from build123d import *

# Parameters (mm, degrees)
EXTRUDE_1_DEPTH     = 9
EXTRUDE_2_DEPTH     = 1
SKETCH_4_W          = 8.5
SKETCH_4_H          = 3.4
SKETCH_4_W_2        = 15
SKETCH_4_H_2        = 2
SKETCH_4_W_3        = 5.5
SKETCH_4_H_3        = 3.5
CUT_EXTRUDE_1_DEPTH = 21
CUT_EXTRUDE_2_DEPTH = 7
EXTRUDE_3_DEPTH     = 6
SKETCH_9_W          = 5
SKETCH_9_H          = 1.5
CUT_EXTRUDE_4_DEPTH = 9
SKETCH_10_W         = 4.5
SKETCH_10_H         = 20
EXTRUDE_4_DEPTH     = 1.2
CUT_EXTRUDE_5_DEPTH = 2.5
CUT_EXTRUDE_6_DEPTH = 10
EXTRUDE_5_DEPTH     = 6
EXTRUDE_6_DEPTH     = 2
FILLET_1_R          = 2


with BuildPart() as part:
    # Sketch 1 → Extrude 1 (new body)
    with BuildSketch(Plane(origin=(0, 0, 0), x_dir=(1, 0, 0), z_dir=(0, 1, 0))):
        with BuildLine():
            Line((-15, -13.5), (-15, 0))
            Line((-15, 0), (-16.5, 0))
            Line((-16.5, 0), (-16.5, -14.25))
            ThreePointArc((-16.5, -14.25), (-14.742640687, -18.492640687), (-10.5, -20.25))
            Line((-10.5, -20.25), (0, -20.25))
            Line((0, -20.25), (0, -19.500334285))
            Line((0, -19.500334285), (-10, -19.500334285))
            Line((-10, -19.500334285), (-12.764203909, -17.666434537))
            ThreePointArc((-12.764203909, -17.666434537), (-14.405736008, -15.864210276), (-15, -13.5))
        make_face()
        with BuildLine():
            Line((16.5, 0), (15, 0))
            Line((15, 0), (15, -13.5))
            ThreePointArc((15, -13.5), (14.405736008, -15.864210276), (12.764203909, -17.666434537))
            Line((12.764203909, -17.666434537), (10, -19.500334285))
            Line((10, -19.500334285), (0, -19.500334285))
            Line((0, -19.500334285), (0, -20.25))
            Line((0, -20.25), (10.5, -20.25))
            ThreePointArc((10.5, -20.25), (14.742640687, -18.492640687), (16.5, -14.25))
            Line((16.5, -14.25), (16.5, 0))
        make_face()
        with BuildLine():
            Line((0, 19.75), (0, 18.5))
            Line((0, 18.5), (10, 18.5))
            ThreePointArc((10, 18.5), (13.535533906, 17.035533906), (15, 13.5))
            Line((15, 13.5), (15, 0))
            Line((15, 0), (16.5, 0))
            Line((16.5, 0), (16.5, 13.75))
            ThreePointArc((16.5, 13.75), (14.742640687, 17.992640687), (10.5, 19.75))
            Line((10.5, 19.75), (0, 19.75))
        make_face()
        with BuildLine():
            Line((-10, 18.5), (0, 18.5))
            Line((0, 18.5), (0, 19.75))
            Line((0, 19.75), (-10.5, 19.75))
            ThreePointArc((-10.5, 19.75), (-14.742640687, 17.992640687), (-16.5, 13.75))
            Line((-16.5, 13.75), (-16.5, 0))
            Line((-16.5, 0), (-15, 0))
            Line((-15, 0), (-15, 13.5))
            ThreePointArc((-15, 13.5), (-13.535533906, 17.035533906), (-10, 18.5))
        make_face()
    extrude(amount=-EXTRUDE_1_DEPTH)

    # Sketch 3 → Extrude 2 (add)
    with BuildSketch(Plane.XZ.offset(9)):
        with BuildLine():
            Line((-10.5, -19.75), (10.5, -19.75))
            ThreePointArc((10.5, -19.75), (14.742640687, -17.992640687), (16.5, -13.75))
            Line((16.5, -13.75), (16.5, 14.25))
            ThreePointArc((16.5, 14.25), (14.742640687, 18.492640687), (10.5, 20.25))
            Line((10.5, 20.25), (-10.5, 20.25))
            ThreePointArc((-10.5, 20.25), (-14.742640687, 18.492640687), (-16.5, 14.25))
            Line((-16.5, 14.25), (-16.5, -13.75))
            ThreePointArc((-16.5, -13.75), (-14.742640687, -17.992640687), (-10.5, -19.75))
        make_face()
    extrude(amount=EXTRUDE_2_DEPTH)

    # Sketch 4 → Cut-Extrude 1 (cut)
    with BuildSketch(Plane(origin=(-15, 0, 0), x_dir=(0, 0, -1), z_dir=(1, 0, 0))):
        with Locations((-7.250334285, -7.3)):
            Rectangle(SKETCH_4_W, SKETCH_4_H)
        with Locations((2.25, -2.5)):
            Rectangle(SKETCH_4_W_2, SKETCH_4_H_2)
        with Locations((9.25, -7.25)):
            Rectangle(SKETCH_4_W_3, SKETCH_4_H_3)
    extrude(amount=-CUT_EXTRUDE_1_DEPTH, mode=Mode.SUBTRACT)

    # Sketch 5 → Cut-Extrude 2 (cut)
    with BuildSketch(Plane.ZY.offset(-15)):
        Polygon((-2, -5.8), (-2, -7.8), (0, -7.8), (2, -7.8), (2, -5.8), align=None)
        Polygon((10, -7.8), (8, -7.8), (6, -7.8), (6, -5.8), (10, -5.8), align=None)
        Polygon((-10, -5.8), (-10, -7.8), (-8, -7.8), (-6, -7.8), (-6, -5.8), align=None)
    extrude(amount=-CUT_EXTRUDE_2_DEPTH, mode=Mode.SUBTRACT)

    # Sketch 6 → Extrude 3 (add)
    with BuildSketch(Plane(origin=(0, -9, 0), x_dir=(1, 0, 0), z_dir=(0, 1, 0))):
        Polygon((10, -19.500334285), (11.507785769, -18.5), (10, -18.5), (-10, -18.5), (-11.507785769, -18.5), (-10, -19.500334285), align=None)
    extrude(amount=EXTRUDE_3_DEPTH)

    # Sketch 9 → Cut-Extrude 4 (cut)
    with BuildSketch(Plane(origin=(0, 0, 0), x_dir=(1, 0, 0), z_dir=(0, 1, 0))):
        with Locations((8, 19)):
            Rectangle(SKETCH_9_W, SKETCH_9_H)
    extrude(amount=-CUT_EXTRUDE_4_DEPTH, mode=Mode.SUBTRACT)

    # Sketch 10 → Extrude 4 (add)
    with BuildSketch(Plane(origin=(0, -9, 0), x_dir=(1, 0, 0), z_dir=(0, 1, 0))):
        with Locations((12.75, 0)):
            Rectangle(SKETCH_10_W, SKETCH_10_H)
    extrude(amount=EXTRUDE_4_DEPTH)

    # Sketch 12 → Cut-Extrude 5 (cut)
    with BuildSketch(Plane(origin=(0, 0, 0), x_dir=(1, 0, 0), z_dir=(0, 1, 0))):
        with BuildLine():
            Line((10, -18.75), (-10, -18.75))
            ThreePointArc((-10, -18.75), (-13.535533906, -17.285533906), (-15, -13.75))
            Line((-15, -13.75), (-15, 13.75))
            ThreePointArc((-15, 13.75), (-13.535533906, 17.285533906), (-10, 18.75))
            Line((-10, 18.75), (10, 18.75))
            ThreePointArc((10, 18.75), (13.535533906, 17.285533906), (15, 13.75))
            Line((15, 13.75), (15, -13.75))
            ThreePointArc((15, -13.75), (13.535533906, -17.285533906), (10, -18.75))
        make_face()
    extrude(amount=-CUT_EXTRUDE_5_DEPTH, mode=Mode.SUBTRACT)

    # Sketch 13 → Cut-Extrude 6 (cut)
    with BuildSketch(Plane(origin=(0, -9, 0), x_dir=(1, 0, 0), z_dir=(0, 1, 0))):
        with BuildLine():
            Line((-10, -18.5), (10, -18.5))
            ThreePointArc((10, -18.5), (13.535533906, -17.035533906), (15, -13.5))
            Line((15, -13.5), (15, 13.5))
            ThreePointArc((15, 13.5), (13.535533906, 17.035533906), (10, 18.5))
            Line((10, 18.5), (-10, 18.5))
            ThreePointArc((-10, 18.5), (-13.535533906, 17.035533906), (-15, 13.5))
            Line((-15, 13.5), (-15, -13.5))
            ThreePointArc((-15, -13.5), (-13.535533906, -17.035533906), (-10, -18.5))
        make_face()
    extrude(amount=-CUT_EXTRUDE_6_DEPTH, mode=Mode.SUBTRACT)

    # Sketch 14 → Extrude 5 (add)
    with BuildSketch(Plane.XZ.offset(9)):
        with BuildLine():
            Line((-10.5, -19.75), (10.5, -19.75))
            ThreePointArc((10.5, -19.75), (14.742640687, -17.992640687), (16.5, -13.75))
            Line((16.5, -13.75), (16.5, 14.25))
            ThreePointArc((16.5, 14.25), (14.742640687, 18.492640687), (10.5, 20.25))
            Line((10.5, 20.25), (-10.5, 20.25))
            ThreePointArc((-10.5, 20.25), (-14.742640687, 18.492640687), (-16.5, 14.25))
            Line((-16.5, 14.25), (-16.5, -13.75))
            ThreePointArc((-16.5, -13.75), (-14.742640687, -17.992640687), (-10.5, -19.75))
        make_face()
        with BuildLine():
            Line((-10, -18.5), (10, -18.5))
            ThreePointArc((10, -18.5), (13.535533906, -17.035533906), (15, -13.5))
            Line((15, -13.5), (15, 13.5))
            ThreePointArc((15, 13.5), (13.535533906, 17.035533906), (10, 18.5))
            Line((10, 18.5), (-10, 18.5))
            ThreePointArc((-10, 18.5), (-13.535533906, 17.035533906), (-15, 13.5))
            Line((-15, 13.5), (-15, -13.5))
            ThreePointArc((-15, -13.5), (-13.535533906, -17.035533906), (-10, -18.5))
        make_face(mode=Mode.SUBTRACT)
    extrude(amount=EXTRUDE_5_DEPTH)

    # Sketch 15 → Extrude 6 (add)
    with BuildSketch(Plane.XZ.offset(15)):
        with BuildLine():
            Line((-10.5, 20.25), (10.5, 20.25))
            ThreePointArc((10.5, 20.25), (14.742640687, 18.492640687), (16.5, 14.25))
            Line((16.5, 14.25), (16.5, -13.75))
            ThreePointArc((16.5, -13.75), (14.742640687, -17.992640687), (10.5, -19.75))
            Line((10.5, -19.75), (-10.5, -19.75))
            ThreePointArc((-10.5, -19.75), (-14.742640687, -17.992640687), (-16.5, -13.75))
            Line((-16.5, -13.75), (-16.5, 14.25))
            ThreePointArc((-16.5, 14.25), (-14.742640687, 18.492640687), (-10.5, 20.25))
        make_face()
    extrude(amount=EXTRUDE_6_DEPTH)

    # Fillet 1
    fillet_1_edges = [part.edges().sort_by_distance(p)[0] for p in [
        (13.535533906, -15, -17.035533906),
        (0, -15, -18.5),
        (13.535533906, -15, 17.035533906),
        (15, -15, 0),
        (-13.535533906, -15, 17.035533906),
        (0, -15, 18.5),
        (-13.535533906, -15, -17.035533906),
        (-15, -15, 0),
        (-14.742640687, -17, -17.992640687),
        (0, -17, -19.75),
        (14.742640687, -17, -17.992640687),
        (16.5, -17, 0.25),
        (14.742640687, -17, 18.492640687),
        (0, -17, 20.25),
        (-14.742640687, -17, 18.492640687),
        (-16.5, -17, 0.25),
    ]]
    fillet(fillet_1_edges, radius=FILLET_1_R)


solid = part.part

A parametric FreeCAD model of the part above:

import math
import FreeCAD as App
import Part
import Sketcher


def edges_at(feature, points):
    """Names of the edges that pass closest to the given points."""
    edges = feature.Shape.Edges
    near = lambda p: min(range(len(edges)), key=lambda i: edges[i].distToShape(Part.Vertex(*p))[0])
    return sorted({f"Edge{near(p) + 1}" for p in points})


def add_polygon(sketch, points):
    """Adds a closed chain of lines whose ends are joined by coincident constraints."""
    first, n = sketch.GeometryCount, len(points)
    for a, b in zip(points, points[1:] + points[:1]):
        sketch.addGeometry(Part.LineSegment(App.Vector(*a, 0), App.Vector(*b, 0)), False)
    for i in range(n):
        sketch.addConstraint(Sketcher.Constraint("Coincident", first + i, 2, first + (i + 1) % n, 1))

doc = App.newDocument("Part")
body = doc.addObject("PartDesign::Body", "Body")

# Sketch on XZ plane
sketch1 = body.newObject("Sketcher::SketchObject", "Sketch")
sketch1.AttachmentSupport = (doc.getObject("XZ_Plane"), [""])
sketch1.MapMode = "FlatFace"
sketch1.addGeometry([
    Part.ArcOfCircle(Part.Circle(App.Vector(-10.5, 14.25, 0), App.Vector(0, 0, 1), 6), math.radians(90), math.radians(180)),  # 0
    Part.LineSegment(App.Vector(-10.5, 20.25, 0), App.Vector(10.5, 20.25, 0)),  # 1
    Part.ArcOfCircle(Part.Circle(App.Vector(10.5, 14.25, 0), App.Vector(0, 0, 1), 6), math.radians(0), math.radians(90)),  # 2
    Part.LineSegment(App.Vector(16.5, 14.25, 0), App.Vector(16.5, -13.75, 0)),  # 3
    Part.ArcOfCircle(Part.Circle(App.Vector(10.5, -13.75, 0), App.Vector(0, 0, 1), 6), math.radians(-90), math.radians(0)),  # 4
    Part.LineSegment(App.Vector(10.5, -19.75, 0), App.Vector(-10.5, -19.75, 0)),  # 5
    Part.ArcOfCircle(Part.Circle(App.Vector(-10.5, -13.75, 0), App.Vector(0, 0, 1), 6), math.radians(180), math.radians(270)),  # 6
    Part.LineSegment(App.Vector(-16.5, -13.75, 0), App.Vector(-16.5, 14.25, 0)),  # 7
    Part.LineSegment(App.Vector(-15, 13.5, 0), App.Vector(-15, -13.5, 0)),  # 8
    Part.ArcOfCircle(Part.Circle(App.Vector(-10, -13.5, 0), App.Vector(0, 0, 1), 5), math.radians(180), math.radians(270)),  # 9
    Part.LineSegment(App.Vector(-10, -18.5, 0), App.Vector(10, -18.5, 0)),  # 10
    Part.ArcOfCircle(Part.Circle(App.Vector(10, -13.5, 0), App.Vector(0, 0, 1), 5), math.radians(-90), math.radians(0)),  # 11
    Part.LineSegment(App.Vector(15, -13.5, 0), App.Vector(15, 13.5, 0)),  # 12
    Part.ArcOfCircle(Part.Circle(App.Vector(10, 13.5, 0), App.Vector(0, 0, 1), 5), math.radians(0), math.radians(56.437878)),  # 13
    Part.LineSegment(App.Vector(12.764204, 17.666435, 0), App.Vector(10, 19.500334, 0)),  # 14
    Part.LineSegment(App.Vector(10, 19.500334, 0), App.Vector(-10, 19.500334, 0)),  # 15
    Part.LineSegment(App.Vector(-10, 19.500334, 0), App.Vector(-12.764204, 17.666435, 0)),  # 16
    Part.ArcOfCircle(Part.Circle(App.Vector(-10, 13.5, 0), App.Vector(0, 0, 1), 5), math.radians(123.562122), math.radians(180)),  # 17
], False)
sketch1.addConstraint([
    Sketcher.Constraint("Tangent", 0, 1, 1, 1),
    Sketcher.Constraint("Tangent", 1, 2, 2, 2),
    Sketcher.Constraint("Tangent", 2, 1, 3, 1),
    Sketcher.Constraint("Tangent", 3, 2, 4, 2),
    Sketcher.Constraint("Tangent", 4, 1, 5, 1),
    Sketcher.Constraint("Tangent", 5, 2, 6, 2),
    Sketcher.Constraint("Tangent", 6, 1, 7, 1),
    Sketcher.Constraint("Tangent", 7, 2, 0, 2),
    Sketcher.Constraint("Tangent", 8, 2, 9, 1),
    Sketcher.Constraint("Tangent", 9, 2, 10, 1),
    Sketcher.Constraint("Tangent", 10, 2, 11, 1),
    Sketcher.Constraint("Tangent", 11, 2, 12, 1),
    Sketcher.Constraint("Tangent", 12, 2, 13, 1),
    Sketcher.Constraint("Tangent", 13, 2, 14, 1),
    Sketcher.Constraint("Coincident", 14, 2, 15, 1),
    Sketcher.Constraint("Coincident", 15, 2, 16, 1),
    Sketcher.Constraint("Tangent", 16, 2, 17, 1),
    Sketcher.Constraint("Tangent", 17, 2, 8, 1),
    Sketcher.Constraint("Horizontal", 1),
    Sketcher.Constraint("Vertical", 3),
    Sketcher.Constraint("Horizontal", 5),
    Sketcher.Constraint("Vertical", 7),
    Sketcher.Constraint("Vertical", 8),
    Sketcher.Constraint("Horizontal", 10),
    Sketcher.Constraint("Vertical", 12),
    Sketcher.Constraint("Horizontal", 15),
    Sketcher.Constraint("Equal", 0, 2),
    Sketcher.Constraint("Equal", 2, 4),
    Sketcher.Constraint("Equal", 4, 6),
    Sketcher.Constraint("Equal", 9, 11),
    Sketcher.Constraint("Equal", 11, 13),
    Sketcher.Constraint("Equal", 13, 17),
    Sketcher.Constraint("Symmetric", 9, 3, 13, 3, -1, 1),
    Sketcher.Constraint("Symmetric", 13, 2, 16, 2, -2),
    Sketcher.Constraint("Vertical", 10, 2, 14, 2),
    Sketcher.Constraint("Radius", 0, 6.0),
    Sketcher.Constraint("Radius", 9, 5.0),
    Sketcher.Constraint("DistanceX", 1, 1, 1, 2, 21.0),
    Sketcher.Constraint("DistanceX", 10, 1, 10, 2, 20.0),
    Sketcher.Constraint("DistanceY", 3, 2, 3, 1, 28.0),
    Sketcher.Constraint("DistanceY", 8, 2, 8, 1, 27.0),
    Sketcher.Constraint("DistanceX", 0, 3, -1, 1, 10.5),
    Sketcher.Constraint("DistanceY", -1, 1, 0, 3, 14.25),
    Sketcher.Constraint("DistanceY", 13, 2, 14, 2, 1.8339),
])
pad1 = body.newObject("PartDesign::Pad", "Pad")
pad1.Profile = sketch1
pad1.Length = 9

# Sketch on XZ plane
sketch2 = body.newObject("Sketcher::SketchObject", "Sketch001")
sketch2.AttachmentSupport = (doc.getObject("XZ_Plane"), [""])
sketch2.MapMode = "FlatFace"
sketch2.AttachmentOffset = App.Placement(App.Vector(0, 0, 9), App.Rotation())
sketch2.addGeometry([
    Part.LineSegment(App.Vector(-10.5, -19.75, 0), App.Vector(10.5, -19.75, 0)),  # 0
    Part.ArcOfCircle(Part.Circle(App.Vector(10.5, -13.75, 0), App.Vector(0, 0, 1), 6), math.radians(-90), math.radians(0)),  # 1
    Part.LineSegment(App.Vector(16.5, -13.75, 0), App.Vector(16.5, 14.25, 0)),  # 2
    Part.ArcOfCircle(Part.Circle(App.Vector(10.5, 14.25, 0), App.Vector(0, 0, 1), 6), math.radians(0), math.radians(90)),  # 3
    Part.LineSegment(App.Vector(10.5, 20.25, 0), App.Vector(-10.5, 20.25, 0)),  # 4
    Part.ArcOfCircle(Part.Circle(App.Vector(-10.5, 14.25, 0), App.Vector(0, 0, 1), 6), math.radians(90), math.radians(180)),  # 5
    Part.LineSegment(App.Vector(-16.5, 14.25, 0), App.Vector(-16.5, -13.75, 0)),  # 6
    Part.ArcOfCircle(Part.Circle(App.Vector(-10.5, -13.75, 0), App.Vector(0, 0, 1), 6), math.radians(180), math.radians(270)),  # 7
], False)
sketch2.addConstraint([
    Sketcher.Constraint("Tangent", 0, 2, 1, 1),
    Sketcher.Constraint("Tangent", 1, 2, 2, 1),
    Sketcher.Constraint("Tangent", 2, 2, 3, 1),
    Sketcher.Constraint("Tangent", 3, 2, 4, 1),
    Sketcher.Constraint("Tangent", 4, 2, 5, 1),
    Sketcher.Constraint("Tangent", 5, 2, 6, 1),
    Sketcher.Constraint("Tangent", 6, 2, 7, 1),
    Sketcher.Constraint("Tangent", 7, 2, 0, 1),
    Sketcher.Constraint("Horizontal", 0),
    Sketcher.Constraint("Vertical", 2),
    Sketcher.Constraint("Horizontal", 4),
    Sketcher.Constraint("Vertical", 6),
    Sketcher.Constraint("Equal", 1, 3),
    Sketcher.Constraint("Equal", 3, 5),
    Sketcher.Constraint("Equal", 5, 7),
    Sketcher.Constraint("Radius", 1, 6.0),
    Sketcher.Constraint("DistanceX", 0, 1, 0, 2, 21.0),
    Sketcher.Constraint("DistanceY", 2, 1, 2, 2, 28.0),
    Sketcher.Constraint("DistanceX", -1, 1, 1, 3, 10.5),
    Sketcher.Constraint("DistanceY", 1, 3, -1, 1, 13.75),
])
pad2 = body.newObject("PartDesign::Pad", "Pad001")
pad2.Profile = sketch2
pad2.Length = 1

# Sketch on YZ plane
sketch3 = body.newObject("Sketcher::SketchObject", "Sketch002")
sketch3.AttachmentSupport = (doc.getObject("YZ_Plane"), [""])
sketch3.MapMode = "FlatFace"
sketch3.AttachmentOffset = App.Placement(App.Vector(0, 0, -15), App.Rotation())
add_polygon(sketch3, [(-5.6, 11.500334), (-9, 11.500334), (-9, 3.000334), (-5.6, 3.000334)])  # lines 0-3
add_polygon(sketch3, [(-1.5, 5.25), (-3.5, 5.25), (-3.5, -9.75), (-1.5, -9.75)])  # lines 4-7
add_polygon(sketch3, [(-5.5, -6.5), (-9, -6.5), (-9, -12), (-5.5, -12)])  # lines 8-11
sketch3.addConstraint([
    Sketcher.Constraint("Horizontal", 0),
    Sketcher.Constraint("Vertical", 1),
    Sketcher.Constraint("Horizontal", 2),
    Sketcher.Constraint("Vertical", 3),
    Sketcher.Constraint("Horizontal", 4),
    Sketcher.Constraint("Vertical", 5),
    Sketcher.Constraint("Horizontal", 6),
    Sketcher.Constraint("Vertical", 7),
    Sketcher.Constraint("Horizontal", 8),
    Sketcher.Constraint("Vertical", 9),
    Sketcher.Constraint("Horizontal", 10),
    Sketcher.Constraint("Vertical", 11),
    Sketcher.Constraint("Vertical", 1, 2, 8, 2),
    Sketcher.Constraint("DistanceX", 4, 2, 4, 1, 2.0),
    Sketcher.Constraint("DistanceY", 5, 2, 5, 1, 15.0),
    Sketcher.Constraint("DistanceX", 0, 2, 0, 1, 3.4),
    Sketcher.Constraint("DistanceX", 8, 2, 8, 1, 3.5),
    Sketcher.Constraint("DistanceY", 1, 2, 1, 1, 8.5),
    Sketcher.Constraint("DistanceY", 9, 2, 9, 1, 5.5),
    Sketcher.Constraint("DistanceX", 0, 2, -1, 1, 9.0),
    Sketcher.Constraint("DistanceY", 9, 2, -1, 1, 12.0),
    Sketcher.Constraint("DistanceX", 10, 2, 5, 2, 2.0),
    Sketcher.Constraint("DistanceY", -1, 1, 4, 2, 5.25),
    Sketcher.Constraint("DistanceY", -1, 1, 0, 2, 11.500334),
])
pocket1 = body.newObject("PartDesign::Pocket", "Pocket")
pocket1.Profile = sketch3
pocket1.Length = 21

# Sketch on YZ plane
sketch4 = body.newObject("Sketcher::SketchObject", "Sketch003")
sketch4.AttachmentSupport = (doc.getObject("YZ_Plane"), [""])
sketch4.MapMode = "FlatFace"
sketch4.AttachmentOffset = App.Placement(App.Vector(0, 0, 15), App.Rotation())
add_polygon(sketch4, [(-5.8, -2), (-7.8, -2), (-7.8, 2), (-5.8, 2)])  # lines 0-3
add_polygon(sketch4, [(-7.8, 6), (-7.8, 10), (-5.8, 10), (-5.8, 6)])  # lines 4-7
add_polygon(sketch4, [(-5.8, -10), (-7.8, -10), (-7.8, -6), (-5.8, -6)])  # lines 8-11
sketch4.addConstraint([
    Sketcher.Constraint("Horizontal", 0),
    Sketcher.Constraint("Vertical", 1),
    Sketcher.Constraint("Horizontal", 2),
    Sketcher.Constraint("Vertical", 3),
    Sketcher.Constraint("Vertical", 4),
    Sketcher.Constraint("Horizontal", 5),
    Sketcher.Constraint("Vertical", 6),
    Sketcher.Constraint("Horizontal", 7),
    Sketcher.Constraint("Horizontal", 8),
    Sketcher.Constraint("Vertical", 9),
    Sketcher.Constraint("Horizontal", 10),
    Sketcher.Constraint("Vertical", 11),
    Sketcher.Constraint("Symmetric", 4, 2, 8, 2, -1),
    Sketcher.Constraint("Symmetric", 6, 2, 10, 2, -1),
    Sketcher.Constraint("Vertical", 1, 2, 4, 2),
    Sketcher.Constraint("Vertical", 3, 2, 5, 2),
    Sketcher.Constraint("Equal", 3, 4),
    Sketcher.Constraint("DistanceX", 0, 2, 0, 1, 2.0),
    Sketcher.Constraint("DistanceY", 1, 1, 1, 2, 4.0),
    Sketcher.Constraint("DistanceY", 0, 2, -1, 1, 2.0),
    Sketcher.Constraint("DistanceY", -1, 1, 4, 2, 10.0),
    Sketcher.Constraint("DistanceX", 0, 2, -1, 1, 7.8),
])
pocket2 = body.newObject("PartDesign::Pocket", "Pocket001")
pocket2.Profile = sketch4
pocket2.Length = 7
pocket2.Reversed = True

# Sketch on XZ plane
sketch5 = body.newObject("Sketcher::SketchObject", "Sketch004")
sketch5.AttachmentSupport = (doc.getObject("XZ_Plane"), [""])
sketch5.MapMode = "FlatFace"
sketch5.AttachmentOffset = App.Placement(App.Vector(0, 0, 9), App.Rotation())
add_polygon(sketch5, [(10, 19.500334), (11.507786, 18.5), (-11.507786, 18.5), (-10, 19.500334)])  # lines 0-3
sketch5.addConstraint([
    Sketcher.Constraint("Horizontal", 1),
    Sketcher.Constraint("Horizontal", 3),
    Sketcher.Constraint("Equal", 0, 2),
    Sketcher.Constraint("DistanceX", 3, 1, 3, 2, 20.0),
    Sketcher.Constraint("DistanceX", 2, 2, -1, 1, 10.0),
    Sketcher.Constraint("DistanceY", -1, 1, 0, 2, 18.5),
    Sketcher.Constraint("DistanceX", 1, 2, 1, 1, 23.015572),
    Sketcher.Constraint("Distance", 0, 1.809444),
])
pad3 = body.newObject("PartDesign::Pad", "Pad002")
pad3.Profile = sketch5
pad3.Length = 6
pad3.Reversed = True

# Sketch on XZ plane
sketch6 = body.newObject("Sketcher::SketchObject", "Sketch005")
sketch6.AttachmentSupport = (doc.getObject("XZ_Plane"), [""])
sketch6.MapMode = "FlatFace"
add_polygon(sketch6, [(5.5, -19.75), (5.5, -18.25), (10.5, -18.25), (10.5, -19.75)])  # lines 0-3
sketch6.addConstraint([
    Sketcher.Constraint("Vertical", 0),
    Sketcher.Constraint("Horizontal", 1),
    Sketcher.Constraint("Vertical", 2),
    Sketcher.Constraint("Horizontal", 3),
    Sketcher.Constraint("DistanceX", 1, 1, 1, 2, 5.0),
    Sketcher.Constraint("DistanceY", 0, 1, 0, 2, 1.5),
    Sketcher.Constraint("DistanceX", -1, 1, 0, 2, 5.5),
    Sketcher.Constraint("DistanceY", 0, 2, -1, 1, 18.25),
])
pocket3 = body.newObject("PartDesign::Pocket", "Pocket002")
pocket3.Profile = sketch6
pocket3.Length = 9
pocket3.Reversed = True

# Sketch on XZ plane
sketch7 = body.newObject("Sketcher::SketchObject", "Sketch006")
sketch7.AttachmentSupport = (doc.getObject("XZ_Plane"), [""])
sketch7.MapMode = "FlatFace"
sketch7.AttachmentOffset = App.Placement(App.Vector(0, 0, 9), App.Rotation())
add_polygon(sketch7, [(10.5, -10), (10.5, 10), (15, 10), (15, -10)])  # lines 0-3
sketch7.addConstraint([
    Sketcher.Constraint("Vertical", 0),
    Sketcher.Constraint("Horizontal", 1),
    Sketcher.Constraint("Vertical", 2),
    Sketcher.Constraint("Horizontal", 3),
    Sketcher.Constraint("DistanceY", 0, 1, 0, 2, 20.0),
    Sketcher.Constraint("DistanceX", 1, 1, 1, 2, 4.5),
    Sketcher.Constraint("DistanceY", -1, 1, 0, 2, 10.0),
    Sketcher.Constraint("DistanceX", -1, 1, 1, 2, 15.0),
])
pad4 = body.newObject("PartDesign::Pad", "Pad003")
pad4.Profile = sketch7
pad4.Length = 1.2
pad4.Reversed = True

# Sketch on XZ plane
sketch8 = body.newObject("Sketcher::SketchObject", "Sketch007")
sketch8.AttachmentSupport = (doc.getObject("XZ_Plane"), [""])
sketch8.MapMode = "FlatFace"
sketch8.addGeometry([
    Part.LineSegment(App.Vector(-10, 18.75, 0), App.Vector(10, 18.75, 0)),  # 0
    Part.ArcOfCircle(Part.Circle(App.Vector(10, 13.75, 0), App.Vector(0, 0, 1), 5), math.radians(0), math.radians(90)),  # 1
    Part.LineSegment(App.Vector(15, 13.75, 0), App.Vector(15, -13.75, 0)),  # 2
    Part.ArcOfCircle(Part.Circle(App.Vector(10, -13.75, 0), App.Vector(0, 0, 1), 5), math.radians(-90), math.radians(0)),  # 3
    Part.LineSegment(App.Vector(10, -18.75, 0), App.Vector(-10, -18.75, 0)),  # 4
    Part.ArcOfCircle(Part.Circle(App.Vector(-10, -13.75, 0), App.Vector(0, 0, 1), 5), math.radians(180), math.radians(270)),  # 5
    Part.LineSegment(App.Vector(-15, -13.75, 0), App.Vector(-15, 13.75, 0)),  # 6
    Part.ArcOfCircle(Part.Circle(App.Vector(-10, 13.75, 0), App.Vector(0, 0, 1), 5), math.radians(90), math.radians(180)),  # 7
], False)
sketch8.addConstraint([
    Sketcher.Constraint("Tangent", 0, 2, 1, 2),
    Sketcher.Constraint("Tangent", 1, 1, 2, 1),
    Sketcher.Constraint("Tangent", 2, 2, 3, 2),
    Sketcher.Constraint("Tangent", 3, 1, 4, 1),
    Sketcher.Constraint("Tangent", 4, 2, 5, 2),
    Sketcher.Constraint("Tangent", 5, 1, 6, 1),
    Sketcher.Constraint("Tangent", 6, 2, 7, 2),
    Sketcher.Constraint("Tangent", 7, 1, 0, 1),
    Sketcher.Constraint("Horizontal", 0),
    Sketcher.Constraint("Vertical", 2),
    Sketcher.Constraint("Horizontal", 4),
    Sketcher.Constraint("Vertical", 6),
    Sketcher.Constraint("Equal", 1, 3),
    Sketcher.Constraint("Equal", 3, 5),
    Sketcher.Constraint("Equal", 5, 7),
    Sketcher.Constraint("Symmetric", 1, 3, 5, 3, -1, 1),
    Sketcher.Constraint("Radius", 1, 5.0),
    Sketcher.Constraint("DistanceX", 0, 1, 0, 2, 20.0),
    Sketcher.Constraint("DistanceY", 2, 2, 2, 1, 27.5),
])
pocket4 = body.newObject("PartDesign::Pocket", "Pocket003")
pocket4.Profile = sketch8
pocket4.Length = 2.5
pocket4.Reversed = True

# Sketch on XZ plane
sketch9 = body.newObject("Sketcher::SketchObject", "Sketch008")
sketch9.AttachmentSupport = (doc.getObject("XZ_Plane"), [""])
sketch9.MapMode = "FlatFace"
sketch9.AttachmentOffset = App.Placement(App.Vector(0, 0, 9), App.Rotation())
sketch9.addGeometry([
    Part.LineSegment(App.Vector(-10, 18.5, 0), App.Vector(10, 18.5, 0)),  # 0
    Part.ArcOfCircle(Part.Circle(App.Vector(10, 13.5, 0), App.Vector(0, 0, 1), 5), math.radians(0), math.radians(90)),  # 1
    Part.LineSegment(App.Vector(15, 13.5, 0), App.Vector(15, -13.5, 0)),  # 2
    Part.ArcOfCircle(Part.Circle(App.Vector(10, -13.5, 0), App.Vector(0, 0, 1), 5), math.radians(-90), math.radians(0)),  # 3
    Part.LineSegment(App.Vector(10, -18.5, 0), App.Vector(-10, -18.5, 0)),  # 4
    Part.ArcOfCircle(Part.Circle(App.Vector(-10, -13.5, 0), App.Vector(0, 0, 1), 5), math.radians(180), math.radians(270)),  # 5
    Part.LineSegment(App.Vector(-15, -13.5, 0), App.Vector(-15, 13.5, 0)),  # 6
    Part.ArcOfCircle(Part.Circle(App.Vector(-10, 13.5, 0), App.Vector(0, 0, 1), 5), math.radians(90), math.radians(180)),  # 7
], False)
sketch9.addConstraint([
    Sketcher.Constraint("Tangent", 0, 2, 1, 2),
    Sketcher.Constraint("Tangent", 1, 1, 2, 1),
    Sketcher.Constraint("Tangent", 2, 2, 3, 2),
    Sketcher.Constraint("Tangent", 3, 1, 4, 1),
    Sketcher.Constraint("Tangent", 4, 2, 5, 2),
    Sketcher.Constraint("Tangent", 5, 1, 6, 1),
    Sketcher.Constraint("Tangent", 6, 2, 7, 2),
    Sketcher.Constraint("Tangent", 7, 1, 0, 1),
    Sketcher.Constraint("Horizontal", 0),
    Sketcher.Constraint("Vertical", 2),
    Sketcher.Constraint("Horizontal", 4),
    Sketcher.Constraint("Vertical", 6),
    Sketcher.Constraint("Equal", 1, 3),
    Sketcher.Constraint("Equal", 3, 5),
    Sketcher.Constraint("Equal", 5, 7),
    Sketcher.Constraint("Symmetric", 1, 3, 5, 3, -1, 1),
    Sketcher.Constraint("Radius", 1, 5.0),
    Sketcher.Constraint("DistanceX", 0, 1, 0, 2, 20.0),
    Sketcher.Constraint("DistanceY", 2, 2, 2, 1, 27.0),
])
pocket5 = body.newObject("PartDesign::Pocket", "Pocket004")
pocket5.Profile = sketch9
pocket5.Length = 10
pocket5.Reversed = True

# Sketch on XZ plane
sketch10 = body.newObject("Sketcher::SketchObject", "Sketch009")
sketch10.AttachmentSupport = (doc.getObject("XZ_Plane"), [""])
sketch10.MapMode = "FlatFace"
sketch10.AttachmentOffset = App.Placement(App.Vector(0, 0, 9), App.Rotation())
sketch10.addGeometry([
    Part.LineSegment(App.Vector(-10.5, -19.75, 0), App.Vector(10.5, -19.75, 0)),  # 0
    Part.ArcOfCircle(Part.Circle(App.Vector(10.5, -13.75, 0), App.Vector(0, 0, 1), 6), math.radians(-90), math.radians(0)),  # 1
    Part.LineSegment(App.Vector(16.5, -13.75, 0), App.Vector(16.5, 14.25, 0)),  # 2
    Part.ArcOfCircle(Part.Circle(App.Vector(10.5, 14.25, 0), App.Vector(0, 0, 1), 6), math.radians(0), math.radians(90)),  # 3
    Part.LineSegment(App.Vector(10.5, 20.25, 0), App.Vector(-10.5, 20.25, 0)),  # 4
    Part.ArcOfCircle(Part.Circle(App.Vector(-10.5, 14.25, 0), App.Vector(0, 0, 1), 6), math.radians(90), math.radians(180)),  # 5
    Part.LineSegment(App.Vector(-16.5, 14.25, 0), App.Vector(-16.5, -13.75, 0)),  # 6
    Part.ArcOfCircle(Part.Circle(App.Vector(-10.5, -13.75, 0), App.Vector(0, 0, 1), 6), math.radians(180), math.radians(270)),  # 7
    Part.LineSegment(App.Vector(10, -18.5, 0), App.Vector(-10, -18.5, 0)),  # 8
    Part.ArcOfCircle(Part.Circle(App.Vector(-10, -13.5, 0), App.Vector(0, 0, 1), 5), math.radians(180), math.radians(270)),  # 9
    Part.LineSegment(App.Vector(-15, -13.5, 0), App.Vector(-15, 13.5, 0)),  # 10
    Part.ArcOfCircle(Part.Circle(App.Vector(-10, 13.5, 0), App.Vector(0, 0, 1), 5), math.radians(90), math.radians(180)),  # 11
    Part.LineSegment(App.Vector(-10, 18.5, 0), App.Vector(10, 18.5, 0)),  # 12
    Part.ArcOfCircle(Part.Circle(App.Vector(10, 13.5, 0), App.Vector(0, 0, 1), 5), math.radians(0), math.radians(90)),  # 13
    Part.LineSegment(App.Vector(15, 13.5, 0), App.Vector(15, -13.5, 0)),  # 14
    Part.ArcOfCircle(Part.Circle(App.Vector(10, -13.5, 0), App.Vector(0, 0, 1), 5), math.radians(-90), math.radians(0)),  # 15
], False)
sketch10.addConstraint([
    Sketcher.Constraint("Tangent", 0, 2, 1, 1),
    Sketcher.Constraint("Tangent", 1, 2, 2, 1),
    Sketcher.Constraint("Tangent", 2, 2, 3, 1),
    Sketcher.Constraint("Tangent", 3, 2, 4, 1),
    Sketcher.Constraint("Tangent", 4, 2, 5, 1),
    Sketcher.Constraint("Tangent", 5, 2, 6, 1),
    Sketcher.Constraint("Tangent", 6, 2, 7, 1),
    Sketcher.Constraint("Tangent", 7, 2, 0, 1),
    Sketcher.Constraint("Tangent", 8, 2, 9, 2),
    Sketcher.Constraint("Tangent", 9, 1, 10, 1),
    Sketcher.Constraint("Tangent", 10, 2, 11, 2),
    Sketcher.Constraint("Tangent", 11, 1, 12, 1),
    Sketcher.Constraint("Tangent", 12, 2, 13, 2),
    Sketcher.Constraint("Tangent", 13, 1, 14, 1),
    Sketcher.Constraint("Tangent", 14, 2, 15, 2),
    Sketcher.Constraint("Tangent", 15, 1, 8, 1),
    Sketcher.Constraint("Horizontal", 0),
    Sketcher.Constraint("Vertical", 2),
    Sketcher.Constraint("Horizontal", 4),
    Sketcher.Constraint("Vertical", 6),
    Sketcher.Constraint("Horizontal", 8),
    Sketcher.Constraint("Vertical", 10),
    Sketcher.Constraint("Horizontal", 12),
    Sketcher.Constraint("Vertical", 14),
    Sketcher.Constraint("Equal", 1, 3),
    Sketcher.Constraint("Equal", 3, 5),
    Sketcher.Constraint("Equal", 5, 7),
    Sketcher.Constraint("Equal", 9, 11),
    Sketcher.Constraint("Equal", 11, 13),
    Sketcher.Constraint("Equal", 13, 15),
    Sketcher.Constraint("Symmetric", 9, 3, 13, 3, -1, 1),
    Sketcher.Constraint("Radius", 1, 6.0),
    Sketcher.Constraint("Radius", 9, 5.0),
    Sketcher.Constraint("DistanceX", 0, 1, 0, 2, 21.0),
    Sketcher.Constraint("DistanceX", 8, 2, 8, 1, 20.0),
    Sketcher.Constraint("DistanceY", 2, 1, 2, 2, 28.0),
    Sketcher.Constraint("DistanceY", 10, 1, 10, 2, 27.0),
    Sketcher.Constraint("DistanceX", -1, 1, 1, 3, 10.5),
    Sketcher.Constraint("DistanceY", 1, 3, -1, 1, 13.75),
])
pad5 = body.newObject("PartDesign::Pad", "Pad004")
pad5.Profile = sketch10
pad5.Length = 6

# Sketch on XZ plane
sketch11 = body.newObject("Sketcher::SketchObject", "Sketch010")
sketch11.AttachmentSupport = (doc.getObject("XZ_Plane"), [""])
sketch11.MapMode = "FlatFace"
sketch11.AttachmentOffset = App.Placement(App.Vector(0, 0, 15), App.Rotation())
sketch11.addGeometry([
    Part.LineSegment(App.Vector(10.5, 20.25, 0), App.Vector(-10.5, 20.25, 0)),  # 0
    Part.ArcOfCircle(Part.Circle(App.Vector(-10.5, 14.25, 0), App.Vector(0, 0, 1), 6), math.radians(90), math.radians(180)),  # 1
    Part.LineSegment(App.Vector(-16.5, 14.25, 0), App.Vector(-16.5, -13.75, 0)),  # 2
    Part.ArcOfCircle(Part.Circle(App.Vector(-10.5, -13.75, 0), App.Vector(0, 0, 1), 6), math.radians(180), math.radians(270)),  # 3
    Part.LineSegment(App.Vector(-10.5, -19.75, 0), App.Vector(10.5, -19.75, 0)),  # 4
    Part.ArcOfCircle(Part.Circle(App.Vector(10.5, -13.75, 0), App.Vector(0, 0, 1), 6), math.radians(-90), math.radians(0)),  # 5
    Part.LineSegment(App.Vector(16.5, -13.75, 0), App.Vector(16.5, 14.25, 0)),  # 6
    Part.ArcOfCircle(Part.Circle(App.Vector(10.5, 14.25, 0), App.Vector(0, 0, 1), 6), math.radians(0), math.radians(90)),  # 7
], False)
sketch11.addConstraint([
    Sketcher.Constraint("Tangent", 0, 2, 1, 1),
    Sketcher.Constraint("Tangent", 1, 2, 2, 1),
    Sketcher.Constraint("Tangent", 2, 2, 3, 1),
    Sketcher.Constraint("Tangent", 3, 2, 4, 1),
    Sketcher.Constraint("Tangent", 4, 2, 5, 1),
    Sketcher.Constraint("Tangent", 5, 2, 6, 1),
    Sketcher.Constraint("Tangent", 6, 2, 7, 1),
    Sketcher.Constraint("Tangent", 7, 2, 0, 1),
    Sketcher.Constraint("Horizontal", 0),
    Sketcher.Constraint("Vertical", 2),
    Sketcher.Constraint("Horizontal", 4),
    Sketcher.Constraint("Vertical", 6),
    Sketcher.Constraint("Equal", 1, 3),
    Sketcher.Constraint("Equal", 3, 5),
    Sketcher.Constraint("Equal", 5, 7),
    Sketcher.Constraint("Radius", 1, 6.0),
    Sketcher.Constraint("DistanceX", 0, 2, 0, 1, 21.0),
    Sketcher.Constraint("DistanceY", 2, 2, 2, 1, 28.0),
    Sketcher.Constraint("DistanceX", 1, 3, -1, 1, 10.5),
    Sketcher.Constraint("DistanceY", -1, 1, 1, 3, 14.25),
])
pad6 = body.newObject("PartDesign::Pad", "Pad005")
pad6.Profile = sketch11
pad6.Length = 2
doc.recompute()

fillet = body.newObject("PartDesign::Fillet", "Fillet")
fillet.Base = (pad6, edges_at(pad6, [
    (13.536, -15, -17.036),
    (0, -15, -18.5),
    (13.536, -15, 17.036),
    (15, -15, 0),
    (-13.536, -15, 17.036),
    (0, -15, 18.5),
    (-13.536, -15, -17.036),
    (-15, -15, 0),
    (-14.743, -17, -17.993),
    (0, -17, -19.75),
    (14.743, -17, -17.993),
    (16.5, -17, 0.25),
    (14.743, -17, 18.493),
    (0, -17, 20.25),
    (-14.743, -17, 18.493),
    (-16.5, -17, 0.25),
]))
fillet.Radius = 2

doc.recompute()
